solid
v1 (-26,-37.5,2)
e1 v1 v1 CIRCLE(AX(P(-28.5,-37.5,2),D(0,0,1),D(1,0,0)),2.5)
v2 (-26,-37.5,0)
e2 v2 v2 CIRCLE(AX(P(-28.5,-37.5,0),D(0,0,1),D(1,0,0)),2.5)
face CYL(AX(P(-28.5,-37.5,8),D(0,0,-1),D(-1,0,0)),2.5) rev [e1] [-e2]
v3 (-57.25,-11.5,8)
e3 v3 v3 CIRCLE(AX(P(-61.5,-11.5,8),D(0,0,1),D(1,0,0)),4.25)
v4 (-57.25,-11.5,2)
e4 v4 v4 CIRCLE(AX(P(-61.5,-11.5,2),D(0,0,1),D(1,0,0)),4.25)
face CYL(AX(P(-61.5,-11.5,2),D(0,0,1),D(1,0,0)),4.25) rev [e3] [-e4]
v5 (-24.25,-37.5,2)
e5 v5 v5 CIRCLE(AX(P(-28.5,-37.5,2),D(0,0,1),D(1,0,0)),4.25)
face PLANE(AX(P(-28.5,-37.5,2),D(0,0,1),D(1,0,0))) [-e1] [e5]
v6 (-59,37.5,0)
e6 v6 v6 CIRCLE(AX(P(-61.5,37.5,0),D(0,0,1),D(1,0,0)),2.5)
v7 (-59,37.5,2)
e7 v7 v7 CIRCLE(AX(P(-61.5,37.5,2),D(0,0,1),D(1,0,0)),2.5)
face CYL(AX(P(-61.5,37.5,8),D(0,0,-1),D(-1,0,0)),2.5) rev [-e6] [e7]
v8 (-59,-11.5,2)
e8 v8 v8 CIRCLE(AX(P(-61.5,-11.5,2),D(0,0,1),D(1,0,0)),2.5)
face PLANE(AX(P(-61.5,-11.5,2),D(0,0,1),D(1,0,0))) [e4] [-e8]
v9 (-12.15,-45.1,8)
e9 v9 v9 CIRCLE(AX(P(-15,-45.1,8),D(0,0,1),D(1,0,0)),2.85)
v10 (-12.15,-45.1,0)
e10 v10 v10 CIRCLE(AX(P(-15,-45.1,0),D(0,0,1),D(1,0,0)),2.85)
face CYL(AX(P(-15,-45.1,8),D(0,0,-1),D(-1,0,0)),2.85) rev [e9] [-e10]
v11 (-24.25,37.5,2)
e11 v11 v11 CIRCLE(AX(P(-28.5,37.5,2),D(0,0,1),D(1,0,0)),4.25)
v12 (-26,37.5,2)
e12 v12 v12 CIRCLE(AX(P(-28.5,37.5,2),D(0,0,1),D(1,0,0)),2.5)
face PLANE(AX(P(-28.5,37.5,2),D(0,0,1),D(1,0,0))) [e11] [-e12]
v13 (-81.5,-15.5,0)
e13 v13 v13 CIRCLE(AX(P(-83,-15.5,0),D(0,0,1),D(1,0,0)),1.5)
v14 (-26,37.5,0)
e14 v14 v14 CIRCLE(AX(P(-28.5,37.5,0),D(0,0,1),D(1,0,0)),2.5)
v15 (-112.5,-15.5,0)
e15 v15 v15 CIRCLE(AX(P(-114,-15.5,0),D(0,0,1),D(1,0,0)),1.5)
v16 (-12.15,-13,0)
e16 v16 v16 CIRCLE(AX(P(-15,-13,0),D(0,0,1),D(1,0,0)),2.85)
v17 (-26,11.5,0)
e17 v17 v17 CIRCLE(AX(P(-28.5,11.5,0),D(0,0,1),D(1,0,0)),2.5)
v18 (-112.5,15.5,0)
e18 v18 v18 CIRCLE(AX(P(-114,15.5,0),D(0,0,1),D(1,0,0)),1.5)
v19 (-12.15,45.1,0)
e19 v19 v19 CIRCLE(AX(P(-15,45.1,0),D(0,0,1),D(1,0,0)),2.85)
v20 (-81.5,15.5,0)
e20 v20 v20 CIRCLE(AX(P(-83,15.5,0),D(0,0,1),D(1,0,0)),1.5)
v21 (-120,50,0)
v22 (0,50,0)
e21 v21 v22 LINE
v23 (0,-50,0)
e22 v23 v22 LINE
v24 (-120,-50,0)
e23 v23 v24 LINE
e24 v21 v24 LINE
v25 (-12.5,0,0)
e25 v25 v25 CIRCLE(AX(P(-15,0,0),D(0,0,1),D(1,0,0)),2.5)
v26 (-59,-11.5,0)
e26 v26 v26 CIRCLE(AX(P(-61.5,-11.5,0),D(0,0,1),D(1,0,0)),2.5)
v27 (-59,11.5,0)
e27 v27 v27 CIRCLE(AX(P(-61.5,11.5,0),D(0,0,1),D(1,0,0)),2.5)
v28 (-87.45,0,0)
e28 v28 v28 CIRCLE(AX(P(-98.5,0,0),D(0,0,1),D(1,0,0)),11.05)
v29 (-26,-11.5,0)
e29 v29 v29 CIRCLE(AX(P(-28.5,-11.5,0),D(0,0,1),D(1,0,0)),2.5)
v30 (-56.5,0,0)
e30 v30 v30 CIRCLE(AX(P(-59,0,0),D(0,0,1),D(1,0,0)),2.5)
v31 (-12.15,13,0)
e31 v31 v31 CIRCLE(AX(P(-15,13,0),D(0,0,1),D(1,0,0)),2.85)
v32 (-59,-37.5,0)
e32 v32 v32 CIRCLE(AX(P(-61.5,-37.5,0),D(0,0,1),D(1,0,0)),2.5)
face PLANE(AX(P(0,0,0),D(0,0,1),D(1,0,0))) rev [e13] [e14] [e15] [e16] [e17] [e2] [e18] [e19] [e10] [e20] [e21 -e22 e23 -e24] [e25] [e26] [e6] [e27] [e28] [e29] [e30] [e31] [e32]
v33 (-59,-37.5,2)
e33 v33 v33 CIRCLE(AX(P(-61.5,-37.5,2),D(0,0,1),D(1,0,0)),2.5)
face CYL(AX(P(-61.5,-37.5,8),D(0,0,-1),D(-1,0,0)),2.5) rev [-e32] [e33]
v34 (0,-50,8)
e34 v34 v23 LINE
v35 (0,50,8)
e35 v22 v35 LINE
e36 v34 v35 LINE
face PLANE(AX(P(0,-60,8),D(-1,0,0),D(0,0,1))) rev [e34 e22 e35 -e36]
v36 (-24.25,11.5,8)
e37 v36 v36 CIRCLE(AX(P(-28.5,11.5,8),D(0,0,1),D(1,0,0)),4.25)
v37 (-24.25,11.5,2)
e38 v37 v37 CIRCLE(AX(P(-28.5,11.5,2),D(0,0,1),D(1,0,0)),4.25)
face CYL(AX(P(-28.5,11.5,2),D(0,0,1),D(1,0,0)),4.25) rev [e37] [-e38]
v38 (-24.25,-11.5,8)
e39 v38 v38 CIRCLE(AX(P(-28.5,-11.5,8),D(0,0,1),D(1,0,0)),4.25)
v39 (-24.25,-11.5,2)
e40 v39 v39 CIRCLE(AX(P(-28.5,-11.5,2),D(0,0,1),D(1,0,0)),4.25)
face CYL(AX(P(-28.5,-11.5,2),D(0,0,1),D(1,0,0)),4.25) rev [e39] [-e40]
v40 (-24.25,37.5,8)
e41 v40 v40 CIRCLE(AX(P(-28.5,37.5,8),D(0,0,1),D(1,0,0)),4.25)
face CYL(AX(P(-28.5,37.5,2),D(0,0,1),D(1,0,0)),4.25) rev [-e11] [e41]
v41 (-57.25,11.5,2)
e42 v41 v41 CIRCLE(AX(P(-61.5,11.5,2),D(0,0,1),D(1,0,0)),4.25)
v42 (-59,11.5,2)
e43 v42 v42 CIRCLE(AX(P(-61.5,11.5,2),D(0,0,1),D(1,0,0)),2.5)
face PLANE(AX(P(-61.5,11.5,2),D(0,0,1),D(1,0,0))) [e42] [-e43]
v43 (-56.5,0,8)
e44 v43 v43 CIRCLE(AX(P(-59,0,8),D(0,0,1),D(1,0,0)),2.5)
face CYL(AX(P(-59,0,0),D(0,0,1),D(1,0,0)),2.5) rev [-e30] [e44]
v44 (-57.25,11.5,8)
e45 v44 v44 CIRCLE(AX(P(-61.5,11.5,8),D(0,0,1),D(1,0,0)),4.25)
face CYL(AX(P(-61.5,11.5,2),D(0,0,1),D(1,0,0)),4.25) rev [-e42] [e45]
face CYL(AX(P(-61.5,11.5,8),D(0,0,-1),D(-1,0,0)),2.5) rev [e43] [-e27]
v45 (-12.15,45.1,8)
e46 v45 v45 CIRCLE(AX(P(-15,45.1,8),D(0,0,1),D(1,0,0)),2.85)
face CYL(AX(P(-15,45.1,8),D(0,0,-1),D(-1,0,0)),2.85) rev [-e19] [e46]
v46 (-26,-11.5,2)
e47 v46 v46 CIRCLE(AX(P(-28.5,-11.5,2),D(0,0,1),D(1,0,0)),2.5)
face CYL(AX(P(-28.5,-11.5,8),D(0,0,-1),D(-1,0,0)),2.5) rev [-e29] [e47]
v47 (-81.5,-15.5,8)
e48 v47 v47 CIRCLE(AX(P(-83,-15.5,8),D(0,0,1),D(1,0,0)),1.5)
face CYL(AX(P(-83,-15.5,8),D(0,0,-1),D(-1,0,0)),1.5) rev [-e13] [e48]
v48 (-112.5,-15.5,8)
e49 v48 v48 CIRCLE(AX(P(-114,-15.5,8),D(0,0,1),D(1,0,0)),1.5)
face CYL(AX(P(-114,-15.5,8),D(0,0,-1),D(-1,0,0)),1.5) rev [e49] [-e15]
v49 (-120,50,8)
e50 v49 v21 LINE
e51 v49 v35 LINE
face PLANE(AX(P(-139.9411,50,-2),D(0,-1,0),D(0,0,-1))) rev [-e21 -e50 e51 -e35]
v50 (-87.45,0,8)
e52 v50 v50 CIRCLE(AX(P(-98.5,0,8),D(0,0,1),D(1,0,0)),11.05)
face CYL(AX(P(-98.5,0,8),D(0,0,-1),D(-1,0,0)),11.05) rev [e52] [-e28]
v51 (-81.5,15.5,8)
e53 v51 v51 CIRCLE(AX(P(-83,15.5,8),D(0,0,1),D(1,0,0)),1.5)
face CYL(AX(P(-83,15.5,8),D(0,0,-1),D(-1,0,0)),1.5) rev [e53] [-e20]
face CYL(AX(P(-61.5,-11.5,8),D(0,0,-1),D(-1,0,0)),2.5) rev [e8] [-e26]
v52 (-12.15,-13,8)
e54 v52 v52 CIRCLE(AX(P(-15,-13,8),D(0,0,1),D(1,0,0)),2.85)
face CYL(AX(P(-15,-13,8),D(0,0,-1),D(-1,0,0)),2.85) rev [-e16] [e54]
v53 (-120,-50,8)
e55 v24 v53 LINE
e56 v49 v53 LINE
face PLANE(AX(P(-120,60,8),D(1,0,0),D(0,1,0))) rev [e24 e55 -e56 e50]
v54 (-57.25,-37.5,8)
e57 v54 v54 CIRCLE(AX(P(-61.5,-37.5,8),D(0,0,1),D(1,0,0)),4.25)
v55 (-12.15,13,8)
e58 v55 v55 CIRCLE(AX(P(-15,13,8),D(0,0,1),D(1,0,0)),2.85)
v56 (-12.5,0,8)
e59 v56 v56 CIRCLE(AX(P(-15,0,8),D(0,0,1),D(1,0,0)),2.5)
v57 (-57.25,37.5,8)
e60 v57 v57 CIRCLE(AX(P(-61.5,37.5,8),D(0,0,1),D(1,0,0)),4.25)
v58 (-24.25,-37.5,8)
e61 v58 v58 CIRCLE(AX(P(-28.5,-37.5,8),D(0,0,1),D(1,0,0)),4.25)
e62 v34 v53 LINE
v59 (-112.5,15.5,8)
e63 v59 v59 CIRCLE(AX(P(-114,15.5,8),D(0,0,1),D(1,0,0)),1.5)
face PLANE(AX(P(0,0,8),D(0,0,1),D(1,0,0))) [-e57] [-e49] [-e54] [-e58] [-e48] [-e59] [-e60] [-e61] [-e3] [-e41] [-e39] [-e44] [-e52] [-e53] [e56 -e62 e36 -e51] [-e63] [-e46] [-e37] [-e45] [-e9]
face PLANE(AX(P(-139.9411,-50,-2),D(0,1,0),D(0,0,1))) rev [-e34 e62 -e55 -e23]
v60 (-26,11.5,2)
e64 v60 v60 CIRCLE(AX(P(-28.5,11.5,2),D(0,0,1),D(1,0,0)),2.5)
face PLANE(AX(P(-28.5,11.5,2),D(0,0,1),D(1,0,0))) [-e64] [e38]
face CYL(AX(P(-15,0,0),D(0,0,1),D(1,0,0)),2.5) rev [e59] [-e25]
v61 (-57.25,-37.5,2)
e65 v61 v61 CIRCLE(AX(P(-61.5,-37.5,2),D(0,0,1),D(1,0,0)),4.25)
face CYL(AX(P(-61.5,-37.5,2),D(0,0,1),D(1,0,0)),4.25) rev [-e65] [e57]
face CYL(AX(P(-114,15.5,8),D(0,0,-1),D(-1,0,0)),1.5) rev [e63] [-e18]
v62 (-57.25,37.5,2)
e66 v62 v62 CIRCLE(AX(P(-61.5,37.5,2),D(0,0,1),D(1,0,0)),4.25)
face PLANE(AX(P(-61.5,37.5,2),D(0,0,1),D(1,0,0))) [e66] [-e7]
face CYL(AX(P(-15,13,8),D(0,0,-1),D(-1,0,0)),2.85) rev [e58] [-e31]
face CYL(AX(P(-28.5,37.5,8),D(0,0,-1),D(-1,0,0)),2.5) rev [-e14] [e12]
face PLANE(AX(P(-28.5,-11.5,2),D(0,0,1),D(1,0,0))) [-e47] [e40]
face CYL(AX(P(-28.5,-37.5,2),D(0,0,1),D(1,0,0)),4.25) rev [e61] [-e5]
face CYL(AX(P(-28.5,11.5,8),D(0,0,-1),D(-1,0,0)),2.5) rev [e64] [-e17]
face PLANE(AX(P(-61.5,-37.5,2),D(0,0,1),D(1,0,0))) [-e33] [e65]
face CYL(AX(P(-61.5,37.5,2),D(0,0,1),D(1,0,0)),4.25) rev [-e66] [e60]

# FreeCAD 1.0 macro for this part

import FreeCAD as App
import Part
import Sketcher


def add_polygon(sketch, points):
    """Adds a closed chain of lines whose ends are joined by coincident constraints."""
    first, n = sketch.GeometryCount, len(points)
    for a, b in zip(points, points[1:] + points[:1]):
        sketch.addGeometry(Part.LineSegment(App.Vector(*a, 0), App.Vector(*b, 0)), False)
    for i in range(n):
        sketch.addConstraint(Sketcher.Constraint("Coincident", first + i, 2, first + (i + 1) % n, 1))

doc = App.newDocument("Part")
body = doc.addObject("PartDesign::Body", "Body")

sketch1 = doc.addObject("Sketcher::SketchObject", "Sketch")
body.addObject(sketch1)
sketch1.AttachmentSupport = (doc.XY_Plane, [""])
sketch1.MapMode = "FlatFace"
add_polygon(sketch1, [(-120, 60), (-120, -60), (0, -60), (0, 60)])
sketch1.addGeometry(Part.Circle(App.Vector(-114, -15.5, 0), App.Vector(0, 0, 1), 1.5), False)
sketch1.addGeometry(Part.Circle(App.Vector(-83, -15.5, 0), App.Vector(0, 0, 1), 1.5), False)
sketch1.addGeometry(Part.Circle(App.Vector(-61.5, -37.5, 0), App.Vector(0, 0, 1), 2.5), False)
sketch1.addGeometry(Part.Circle(App.Vector(-28.5, -37.5, 0), App.Vector(0, 0, 1), 2.5), False)
sketch1.addGeometry(Part.Circle(App.Vector(-15, -45.1, 0), App.Vector(0, 0, 1), 2.9), False)
sketch1.addGeometry(Part.Circle(App.Vector(-61.5, -11.5, 0), App.Vector(0, 0, 1), 2.5), False)
sketch1.addGeometry(Part.Circle(App.Vector(-15, -13, 0), App.Vector(0, 0, 1), 2.9), False)
sketch1.addGeometry(Part.Circle(App.Vector(-28.5, -11.5, 0), App.Vector(0, 0, 1), 2.5), False)
sketch1.addGeometry(Part.Circle(App.Vector(-98.5, 0, 0), App.Vector(0, 0, 1), 11.1), False)
sketch1.addGeometry(Part.Circle(App.Vector(-114, 15.5, 0), App.Vector(0, 0, 1), 1.5), False)
sketch1.addGeometry(Part.Circle(App.Vector(-83, 15.5, 0), App.Vector(0, 0, 1), 1.5), False)
sketch1.addGeometry(Part.Circle(App.Vector(-61.5, 11.5, 0), App.Vector(0, 0, 1), 2.5), False)
sketch1.addGeometry(Part.Circle(App.Vector(-28.5, 11.5, 0), App.Vector(0, 0, 1), 2.5), False)
sketch1.addGeometry(Part.Circle(App.Vector(-15, 13, 0), App.Vector(0, 0, 1), 2.9), False)
sketch1.addGeometry(Part.Circle(App.Vector(-61.5, 37.5, 0), App.Vector(0, 0, 1), 2.5), False)
sketch1.addGeometry(Part.Circle(App.Vector(-28.5, 37.5, 0), App.Vector(0, 0, 1), 2.5), False)
sketch1.addGeometry(Part.Circle(App.Vector(-15, 45.1, 0), App.Vector(0, 0, 1), 2.9), False)
sketch1.addConstraint([
    Sketcher.Constraint("Vertical", 0),
    Sketcher.Constraint("Horizontal", 1),
    Sketcher.Constraint("Vertical", 2),
    Sketcher.Constraint("Horizontal", 3),
    Sketcher.Constraint("Equal", 4, 5),
    Sketcher.Constraint("Equal", 6, 7),
    Sketcher.Constraint("Equal", 7, 9),
    Sketcher.Constraint("Equal", 8, 10),
    Sketcher.Constraint("Equal", 9, 11),
    Sketcher.Constraint("Equal", 5, 13),
    Sketcher.Constraint("Equal", 13, 14),
    Sketcher.Constraint("Equal", 11, 15),
    Sketcher.Constraint("Equal", 15, 16),
    Sketcher.Constraint("Equal", 10, 17),
    Sketcher.Constraint("Equal", 16, 18),
    Sketcher.Constraint("Equal", 18, 19),
    Sketcher.Constraint("Equal", 17, 20),
    Sketcher.Constraint("Symmetric", 1, 2, 2, 2, -1, 1),
    Sketcher.Constraint("Symmetric", 4, 3, 13, 3, -1),
    Sketcher.Constraint("Symmetric", 5, 3, 14, 3, -1),
    Sketcher.Constraint("Symmetric", 9, 3, 15, 3, -1),
    Sketcher.Constraint("Symmetric", 11, 3, 16, 3, -1),
    Sketcher.Constraint("Symmetric", 10, 3, 17, 3, -1),
    Sketcher.Constraint("Symmetric", 6, 3, 18, 3, -1),
    Sketcher.Constraint("Symmetric", 7, 3, 19, 3, -1),
    Sketcher.Constraint("Symmetric", 8, 3, 20, 3, -1),
    Sketcher.Constraint("PointOnObject", 12, 3, -1),
    Sketcher.Constraint("Horizontal", 4, 3, 5, 3),
    Sketcher.Constraint("Horizontal", 6, 3, 7, 3),
    Sketcher.Constraint("Horizontal", 9, 3, 11, 3),
    Sketcher.Constraint("Vertical", 6, 3, 9, 3),
    Sketcher.Constraint("Vertical", 8, 3, 10, 3),
    Sketcher.Constraint("Vertical", 7, 3, 11, 3),
    Sketcher.Constraint("Equal", 3, 0),
    Sketcher.Constraint("Diameter", 4, 3.0),
    Sketcher.Constraint("Diameter", 6, 5.0),
    Sketcher.Constraint("Diameter", 8, 5.7),
    Sketcher.Constraint("Diameter", 12, 22.1),
    Sketcher.Constraint("DistanceX", 1, 1, 1, 2, 120.0),
    Sketcher.Constraint("DistanceX", 4, 3, -1, 1, 114.0),
    Sketcher.Constraint("DistanceX", 5, 3, -1, 1, 83.0),
    Sketcher.Constraint("DistanceX", 8, 3, -1, 1, 15.0),
    Sketcher.Constraint("DistanceY", 10, 3, -1, 1, 13.0),
    Sketcher.Constraint("DistanceY", 6, 3, 5, 3, 22.0),
    Sketcher.Constraint("DistanceX", 6, 3, 7, 3, 33.0),
    Sketcher.Constraint("DistanceY", 5, 3, 9, 3, 4.0),
    Sketcher.Constraint("DistanceX", 12, 3, 9, 3, 37.0),
    Sketcher.Constraint("DistanceY", 4, 3, 13, 3, 31.0),
    Sketcher.Constraint("DistanceX", 6, 3, -1, 1, 61.5),
    Sketcher.Constraint("DistanceY", 8, 3, -1, 1, 45.1),
])
pad1 = doc.addObject("PartDesign::Pad", "Pad")
body.addObject(pad1)
pad1.Profile = sketch1
pad1.Length = 8

sketch2 = doc.addObject("Sketcher::SketchObject", "Sketch001")
body.addObject(sketch2)
sketch2.AttachmentSupport = (doc.XY_Plane, [""])
sketch2.MapMode = "FlatFace"
sketch2.AttachmentOffset = App.Placement(App.Vector(0, 0, 8), App.Rotation())
add_polygon(sketch2, [(-140, 69), (-140, 50), (30, 50), (30, 69)])
add_polygon(sketch2, [(-140, -50), (-140, -79), (49, -79), (49, -50)])
sketch2.addConstraint([
    Sketcher.Constraint("Vertical", 0),
    Sketcher.Constraint("Horizontal", 1),
    Sketcher.Constraint("Vertical", 2),
    Sketcher.Constraint("Horizontal", 3),
    Sketcher.Constraint("Vertical", 4),
    Sketcher.Constraint("Horizontal", 5),
    Sketcher.Constraint("Vertical", 6),
    Sketcher.Constraint("Horizontal", 7),
    Sketcher.Constraint("Symmetric", 0, 2, 7, 2, -1),
    Sketcher.Constraint("DistanceY", -1, 1, 0, 2, 50.0),
    Sketcher.Constraint("DistanceX", 0, 2, -1, 1, 139.9411),
    Sketcher.Constraint("DistanceX", 1, 1, 1, 2, 169.939825),
    Sketcher.Constraint("DistanceX", 5, 1, 5, 2, 188.744642),
    Sketcher.Constraint("DistanceY", 0, 2, 0, 1, 19.036975),
    Sketcher.Constraint("DistanceY", 4, 2, 4, 1, 29.251937),
])
pocket1 = doc.addObject("PartDesign::Pocket", "Pocket")
body.addObject(pocket1)
pocket1.Profile = sketch2
pocket1.Length = 10

sketch3 = doc.addObject("Sketcher::SketchObject", "Sketch002")
body.addObject(sketch3)
sketch3.AttachmentSupport = (doc.XY_Plane, [""])
sketch3.MapMode = "FlatFace"
sketch3.AttachmentOffset = App.Placement(App.Vector(0, 0, 8), App.Rotation())
sketch3.addGeometry([
    Part.Circle(App.Vector(-61.5, 37.5, 0), App.Vector(0, 0, 1), 4.2),
    Part.Circle(App.Vector(-28.5, 37.5, 0), App.Vector(0, 0, 1), 4.2),
    Part.Circle(App.Vector(-61.5, 11.5, 0), App.Vector(0, 0, 1), 4.2),
    Part.Circle(App.Vector(-28.5, 11.5, 0), App.Vector(0, 0, 1), 4.2),
    Part.Circle(App.Vector(-61.5, -11.5, 0), App.Vector(0, 0, 1), 4.2),
    Part.Circle(App.Vector(-28.5, -11.5, 0), App.Vector(0, 0, 1), 4.2),
    Part.Circle(App.Vector(-61.5, -37.5, 0), App.Vector(0, 0, 1), 4.2),
    Part.Circle(App.Vector(-28.5, -37.5, 0), App.Vector(0, 0, 1), 4.2),
], False)
sketch3.addConstraint([
    Sketcher.Constraint("Equal", 0, 1),
    Sketcher.Constraint("Equal", 1, 2),
    Sketcher.Constraint("Equal", 2, 3),
    Sketcher.Constraint("Equal", 3, 4),
    Sketcher.Constraint("Equal", 4, 5),
    Sketcher.Constraint("Equal", 5, 6),
    Sketcher.Constraint("Equal", 6, 7),
    Sketcher.Constraint("Symmetric", 2, 3, 4, 3, -1),
    Sketcher.Constraint("Symmetric", 3, 3, 5, 3, -1),
    Sketcher.Constraint("Symmetric", 0, 3, 6, 3, -1),
    Sketcher.Constraint("Symmetric", 1, 3, 7, 3, -1),
    Sketcher.Constraint("Horizontal", 0, 3, 1, 3),
    Sketcher.Constraint("Horizontal", 2, 3, 3, 3),
    Sketcher.Constraint("Vertical", 0, 3, 2, 3),
    Sketcher.Constraint("Vertical", 1, 3, 3, 3),
    Sketcher.Constraint("Diameter", 0, 8.5),
    Sketcher.Constraint("DistanceX", 0, 3, 1, 3, 33.0),
    Sketcher.Constraint("DistanceY", 2, 3, 0, 3, 26.0),
    Sketcher.Constraint("DistanceY", 4, 3, 2, 3, 23.0),
    Sketcher.Constraint("DistanceX", 0, 3, -1, 1, 61.5),
])
pocket2 = doc.addObject("PartDesign::Pocket", "Pocket001")
body.addObject(pocket2)
pocket2.Profile = sketch3
pocket2.Length = 6

sketch4 = doc.addObject("Sketcher::SketchObject", "Sketch003")
body.addObject(sketch4)
sketch4.AttachmentSupport = (doc.XY_Plane, [""])
sketch4.MapMode = "FlatFace"
sketch4.AttachmentOffset = App.Placement(App.Vector(0, 0, 8), App.Rotation())
sketch4.addGeometry([
    Part.Circle(App.Vector(-15, 0, 0), App.Vector(0, 0, 1), 2.5),
    Part.Circle(App.Vector(-59, 0, 0), App.Vector(0, 0, 1), 2.5),
], False)
sketch4.addConstraint([
    Sketcher.Constraint("Equal", 0, 1),
    Sketcher.Constraint("PointOnObject", 0, 3, -1),
    Sketcher.Constraint("PointOnObject", 1, 3, -1),
    Sketcher.Constraint("Diameter", 0, 5.0),
    Sketcher.Constraint("DistanceX", 0, 3, -1, 1, 15.0),
    Sketcher.Constraint("DistanceX", 1, 3, -1, 1, 59.0),
])
pocket3 = doc.addObject("PartDesign::Pocket", "Pocket002")
body.addObject(pocket3)
pocket3.Profile = sketch4
pocket3.Type = "ThroughAll"

doc.recompute()
